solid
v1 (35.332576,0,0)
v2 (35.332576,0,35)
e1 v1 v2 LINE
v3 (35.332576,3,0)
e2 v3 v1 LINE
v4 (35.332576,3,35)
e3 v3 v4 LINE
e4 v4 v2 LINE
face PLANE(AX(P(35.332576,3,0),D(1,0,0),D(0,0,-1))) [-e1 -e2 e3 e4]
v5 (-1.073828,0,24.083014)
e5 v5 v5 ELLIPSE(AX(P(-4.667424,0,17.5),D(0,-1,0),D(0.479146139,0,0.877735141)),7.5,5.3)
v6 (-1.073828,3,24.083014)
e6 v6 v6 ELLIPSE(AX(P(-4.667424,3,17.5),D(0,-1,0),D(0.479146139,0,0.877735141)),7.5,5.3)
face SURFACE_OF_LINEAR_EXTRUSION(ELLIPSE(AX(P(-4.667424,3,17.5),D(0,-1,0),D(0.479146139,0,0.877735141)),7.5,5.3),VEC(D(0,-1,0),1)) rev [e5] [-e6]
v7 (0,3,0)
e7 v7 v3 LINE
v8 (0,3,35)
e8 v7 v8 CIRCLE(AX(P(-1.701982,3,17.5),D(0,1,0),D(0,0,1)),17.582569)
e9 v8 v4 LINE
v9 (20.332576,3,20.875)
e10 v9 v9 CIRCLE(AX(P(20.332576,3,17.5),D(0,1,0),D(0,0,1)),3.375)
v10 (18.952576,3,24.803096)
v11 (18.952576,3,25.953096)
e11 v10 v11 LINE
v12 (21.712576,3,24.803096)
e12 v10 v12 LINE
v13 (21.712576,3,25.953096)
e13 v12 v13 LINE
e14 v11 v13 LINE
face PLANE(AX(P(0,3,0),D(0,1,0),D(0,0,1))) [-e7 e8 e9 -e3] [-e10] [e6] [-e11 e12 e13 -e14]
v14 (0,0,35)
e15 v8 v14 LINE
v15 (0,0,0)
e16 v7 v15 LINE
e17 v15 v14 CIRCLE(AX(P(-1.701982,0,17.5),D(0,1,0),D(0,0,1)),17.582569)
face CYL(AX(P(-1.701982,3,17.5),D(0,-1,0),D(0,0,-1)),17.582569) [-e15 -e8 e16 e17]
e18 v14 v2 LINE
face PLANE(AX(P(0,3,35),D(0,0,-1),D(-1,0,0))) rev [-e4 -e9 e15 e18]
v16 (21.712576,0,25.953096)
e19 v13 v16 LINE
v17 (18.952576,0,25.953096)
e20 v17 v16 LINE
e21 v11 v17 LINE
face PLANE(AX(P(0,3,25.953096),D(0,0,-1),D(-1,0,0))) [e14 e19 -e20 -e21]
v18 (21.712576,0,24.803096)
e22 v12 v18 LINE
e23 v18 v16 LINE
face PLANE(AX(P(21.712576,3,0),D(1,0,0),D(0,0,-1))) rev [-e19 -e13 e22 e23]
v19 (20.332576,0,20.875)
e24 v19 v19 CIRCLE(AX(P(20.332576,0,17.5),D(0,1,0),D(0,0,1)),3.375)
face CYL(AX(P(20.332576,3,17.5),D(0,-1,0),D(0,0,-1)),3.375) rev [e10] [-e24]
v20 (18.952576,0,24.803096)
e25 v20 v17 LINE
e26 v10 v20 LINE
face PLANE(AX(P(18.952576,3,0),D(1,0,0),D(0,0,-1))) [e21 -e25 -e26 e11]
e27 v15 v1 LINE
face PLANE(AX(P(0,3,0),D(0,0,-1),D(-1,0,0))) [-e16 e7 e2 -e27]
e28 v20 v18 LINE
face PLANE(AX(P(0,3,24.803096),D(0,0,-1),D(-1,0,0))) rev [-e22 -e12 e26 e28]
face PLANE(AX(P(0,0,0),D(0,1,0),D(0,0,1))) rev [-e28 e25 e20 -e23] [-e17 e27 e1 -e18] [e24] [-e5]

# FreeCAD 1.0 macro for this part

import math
import FreeCAD as App
import Part
import Sketcher
Q = App.Units.Quantity


def add_polygon(sketch, points):
    """Adds a closed chain of lines whose ends are joined by coincident constraints."""
    first, n = sketch.GeometryCount, len(points)
    for a, b in zip(points, points[1:] + points[:1]):
        sketch.addGeometry(Part.LineSegment(App.Vector(*a, 0), App.Vector(*b, 0)), False)
    for i in range(n):
        sketch.addConstraint(Sketcher.Constraint("Coincident", first + i, 2, first + (i + 1) % n, 1))

doc = App.newDocument("Part")
body = doc.addObject("PartDesign::Body", "Body")

sketch1 = body.newObject("Sketcher::SketchObject", "Sketch")
sketch1.AttachmentSupport = (doc.getObject("XZ_Plane"), [""])
sketch1.MapMode = "FlatFace"
sketch1.addGeometry(Part.LineSegment(App.Vector(35.332576, 0, 0), App.Vector(0, 0, 0)), False)
sketch1.addGeometry(Part.ArcOfCircle(Part.Circle(App.Vector(-1.701982, 17.5, 0), App.Vector(0, 0, 1), 17.582569), math.radians(84.445104), math.radians(275.554896)), False)
sketch1.addGeometry(Part.LineSegment(App.Vector(0, 35, 0), App.Vector(35.332576, 35, 0)), False)
sketch1.addGeometry(Part.LineSegment(App.Vector(35.332576, 35, 0), App.Vector(35.332576, 0, 0)), False)
add_polygon(sketch1, [(18.952576, 25.953096), (18.952576, 24.803096), (21.712576, 24.803096), (21.712576, 25.953096)])
sketch1.addGeometry(Part.Circle(App.Vector(20.332576, 17.5, 0), App.Vector(0, 0, 1), 3.375), False)
sketch1.addGeometry(Part.Ellipse(App.Vector(-8.26102, 10.916986, 0), App.Vector(-0.015428, 14.960525, 0), App.Vector(-4.667424, 17.5, 0)), False)
sketch1.addConstraint([
    Sketcher.Constraint("Block", 9),
    Sketcher.Constraint("Coincident", 0, 2, 1, 2),
    Sketcher.Constraint("Coincident", 1, 1, 2, 1),
    Sketcher.Constraint("Coincident", 2, 2, 3, 1),
    Sketcher.Constraint("Coincident", 3, 2, 0, 1),
    Sketcher.Constraint("Horizontal", 0),
    Sketcher.Constraint("Horizontal", 2),
    Sketcher.Constraint("Vertical", 3),
    Sketcher.Constraint("Vertical", 4),
    Sketcher.Constraint("Horizontal", 5),
    Sketcher.Constraint("Vertical", 6),
    Sketcher.Constraint("Horizontal", 7),
    Sketcher.Constraint("Coincident", 0, 2, -1, 1),
    Sketcher.Constraint("PointOnObject", 1, 1, -2),
    Sketcher.Constraint("Horizontal", 1, 3, 8, 3),
    Sketcher.Constraint("Diameter", 8, Q("6.75 mm")),
    Sketcher.Constraint("DistanceY", 3, 2, 3, 1, Q("35 mm")),
    Sketcher.Constraint("DistanceX", 8, 3, 2, 2, Q("15 mm")),
    Sketcher.Constraint("DistanceX", 5, 1, 5, 2, Q("2.76 mm")),
    Sketcher.Constraint("DistanceY", 4, 2, 4, 1, Q("1.15 mm")),
    Sketcher.Constraint("Radius", 1, Q("17.582569 mm")),
    Sketcher.Constraint("DistanceX", 4, 2, 8, 3, Q("1.38 mm")),
    Sketcher.Constraint("DistanceX", 0, 2, 0, 1, Q("35.332576 mm")),
    Sketcher.Constraint("DistanceY", -1, 1, 4, 2, Q("24.803096 mm")),
])
pad1 = body.newObject("PartDesign::Pad", "Pad")
pad1.Profile = sketch1
pad1.Length = 3
pad1.Reversed = True

doc.recompute()
